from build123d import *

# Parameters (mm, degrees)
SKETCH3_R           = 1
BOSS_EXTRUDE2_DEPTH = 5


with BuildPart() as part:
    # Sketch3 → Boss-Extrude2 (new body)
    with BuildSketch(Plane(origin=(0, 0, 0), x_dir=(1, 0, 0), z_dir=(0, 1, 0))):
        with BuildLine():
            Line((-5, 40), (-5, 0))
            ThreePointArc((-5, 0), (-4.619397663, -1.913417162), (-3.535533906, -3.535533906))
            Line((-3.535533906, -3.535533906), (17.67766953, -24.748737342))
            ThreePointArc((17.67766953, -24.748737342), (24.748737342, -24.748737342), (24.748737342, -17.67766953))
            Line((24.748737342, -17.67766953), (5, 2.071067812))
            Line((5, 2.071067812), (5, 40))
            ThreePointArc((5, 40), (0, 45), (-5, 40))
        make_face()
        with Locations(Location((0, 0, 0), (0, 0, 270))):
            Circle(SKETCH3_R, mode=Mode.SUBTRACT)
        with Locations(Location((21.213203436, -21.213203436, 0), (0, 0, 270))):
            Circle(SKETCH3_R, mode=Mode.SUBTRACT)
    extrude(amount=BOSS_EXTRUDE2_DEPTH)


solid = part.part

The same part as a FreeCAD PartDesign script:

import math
import FreeCAD as App
import Part
import Sketcher
Q = App.Units.Quantity

doc = App.newDocument("Part")
body = doc.addObject("PartDesign::Body", "Body")

# Sketch on XZ plane
sketch1 = body.newObject("Sketcher::SketchObject", "Sketch")
sketch1.AttachmentSupport = (doc.getObject("XZ_Plane"), [""])
sketch1.MapMode = "FlatFace"
sketch1.addGeometry(Part.LineSegment(App.Vector(-5, -40, 0), App.Vector(-5, 0, 0)), False)
sketch1.addGeometry(Part.ArcOfCircle(Part.Circle(App.Vector(0, 0, 0), App.Vector(0, 0, 1), 5), math.radians(135), math.radians(180)), False)
sketch1.addGeometry(Part.LineSegment(App.Vector(-3.5, 3.5, 0), App.Vector(17.7, 24.7, 0)), False)
sketch1.addGeometry(Part.ArcOfCircle(Part.Circle(App.Vector(21.2, 21.2, 0), App.Vector(0, 0, 1), 5), math.radians(-45), math.radians(135)), False)
sketch1.addGeometry(Part.LineSegment(App.Vector(24.7, 17.7, 0), App.Vector(5, -2.1, 0)), False)
sketch1.addGeometry(Part.LineSegment(App.Vector(5, -2.1, 0), App.Vector(5, -40, 0)), False)
sketch1.addGeometry(Part.ArcOfCircle(Part.Circle(App.Vector(0, -40, 0), App.Vector(0, 0, 1), 5), math.radians(180), math.radians(360)), False)
sketch1.addGeometry(Part.Circle(App.Vector(21.2, 21.2, 0), App.Vector(0, 0, 1), 1), False)
sketch1.addGeometry(Part.Circle(App.Vector(0, 0, 0), App.Vector(0, 0, 1), 1), False)
sketch1.addConstraint(Sketcher.Constraint("Tangent", 0, 2, 1, 2))
sketch1.addConstraint(Sketcher.Constraint("Tangent", 1, 1, 2, 1))
sketch1.addConstraint(Sketcher.Constraint("Tangent", 2, 2, 3, 2))
sketch1.addConstraint(Sketcher.Constraint("Tangent", 3, 1, 4, 1))
sketch1.addConstraint(Sketcher.Constraint("Coincident", 4, 2, 5, 1))
sketch1.addConstraint(Sketcher.Constraint("Tangent", 5, 2, 6, 2))
sketch1.addConstraint(Sketcher.Constraint("Tangent", 6, 1, 0, 1))
sketch1.addConstraint(Sketcher.Constraint("Vertical", 0))
sketch1.addConstraint(Sketcher.Constraint("Vertical", 5))
sketch1.addConstraint(Sketcher.Constraint("Coincident", 1, 3, -1, 1))
sketch1.addConstraint(Sketcher.Constraint("Coincident", 8, 3, -1, 1))
sketch1.addConstraint(Sketcher.Constraint("Coincident", 7, 3, 3, 3))
sketch1.addConstraint(Sketcher.Constraint("Equal", 1, 3))
sketch1.addConstraint(Sketcher.Constraint("Equal", 3, 6))
sketch1.addConstraint(Sketcher.Constraint("Equal", 7, 8))
sketch1.addConstraint(Sketcher.Constraint("Parallel", 2, 4))
sketch1.addConstraint(Sketcher.Constraint("Diameter", 7, 2.0))
sketch1.addConstraint(Sketcher.Constraint("Radius", 1, 5.0))
sketch1.addConstraint(Sketcher.Constraint("DistanceY", 0, 1, 0, 2, 40.0))
sketch1.addConstraint(Sketcher.Constraint("Angle", 2, Q("45 deg")))
sketch1.addConstraint(Sketcher.Constraint("Distance", 2, 30.0))
pad1 = body.newObject("PartDesign::Pad", "Pad")
pad1.Profile = sketch1
pad1.Length = 5
pad1.Reversed = True

doc.recompute()
